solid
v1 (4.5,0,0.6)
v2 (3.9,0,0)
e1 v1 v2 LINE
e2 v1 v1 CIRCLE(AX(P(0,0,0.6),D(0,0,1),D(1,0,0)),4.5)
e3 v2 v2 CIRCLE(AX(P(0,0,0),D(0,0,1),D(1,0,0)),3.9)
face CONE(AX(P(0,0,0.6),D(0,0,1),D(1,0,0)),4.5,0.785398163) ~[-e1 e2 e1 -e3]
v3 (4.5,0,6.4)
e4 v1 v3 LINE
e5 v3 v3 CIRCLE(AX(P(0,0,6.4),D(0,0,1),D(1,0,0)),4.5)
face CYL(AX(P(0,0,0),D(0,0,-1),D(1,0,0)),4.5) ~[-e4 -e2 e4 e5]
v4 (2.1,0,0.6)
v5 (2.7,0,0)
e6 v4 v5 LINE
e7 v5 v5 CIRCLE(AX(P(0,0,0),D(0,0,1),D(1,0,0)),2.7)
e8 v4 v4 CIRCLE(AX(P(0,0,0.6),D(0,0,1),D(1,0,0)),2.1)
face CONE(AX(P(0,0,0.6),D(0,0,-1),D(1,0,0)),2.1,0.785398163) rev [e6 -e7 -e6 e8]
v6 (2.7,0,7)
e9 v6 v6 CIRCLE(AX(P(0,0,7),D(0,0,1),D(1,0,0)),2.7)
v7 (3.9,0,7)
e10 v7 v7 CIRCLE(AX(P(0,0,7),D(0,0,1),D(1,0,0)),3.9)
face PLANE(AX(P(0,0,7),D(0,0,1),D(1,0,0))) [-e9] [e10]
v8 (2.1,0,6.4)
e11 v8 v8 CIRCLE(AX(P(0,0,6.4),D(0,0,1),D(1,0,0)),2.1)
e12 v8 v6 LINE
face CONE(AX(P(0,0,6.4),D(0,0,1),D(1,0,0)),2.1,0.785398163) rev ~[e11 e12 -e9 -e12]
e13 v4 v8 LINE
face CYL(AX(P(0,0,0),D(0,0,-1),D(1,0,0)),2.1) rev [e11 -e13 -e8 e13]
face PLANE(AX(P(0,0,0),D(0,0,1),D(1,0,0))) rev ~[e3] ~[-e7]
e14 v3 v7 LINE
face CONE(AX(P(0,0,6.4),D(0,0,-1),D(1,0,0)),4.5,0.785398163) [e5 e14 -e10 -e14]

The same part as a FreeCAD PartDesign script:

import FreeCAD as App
import Part
import Sketcher
from FreeCAD import Vector
Q = App.Units.Quantity


def edges_at(feature, points):
    """Names of the edges that pass closest to the given points."""
    edges = feature.Shape.Edges
    near = lambda p: min(range(len(edges)), key=lambda i: edges[i].distToShape(Part.Vertex(*p))[0])
    return sorted({f"Edge{near(p) + 1}" for p in points})

doc = App.newDocument("Part")
params = doc.addObject("Spreadsheet::Sheet", "Params")
for row, (alias, value) in enumerate([
    ("sketch1_diameter", "9 mm"),
    ("sketch1_diameter2", "4.2 mm"),
    ("pad1_length", "7 mm"),
    ("chamfer_size", "0.6 mm"),
], start=1):
    params.set(f"A{row}", alias)
    params.set(f"B{row}", "=" + value)
    params.setAlias(f"B{row}", alias)

body = doc.addObject("PartDesign::Body", "Body")

# Sketch on XY plane
sketch1 = body.newObject("Sketcher::SketchObject", "Sketch")
sketch1.AttachmentSupport = (doc.getObject("XY_Plane"), [""])
sketch1.MapMode = "FlatFace"
sketch1.addGeometry([
    Part.Circle(Vector(0, 0, 0), Vector(0, 0, 1), 4.5),
    Part.Circle(Vector(0, 0, 0), Vector(0, 0, 1), 2.1),
], False)
sketch1.addConstraint([
    Sketcher.Constraint("Coincident", 0, 3, -1, 1),
    Sketcher.Constraint("Coincident", 1, 3, -1, 1),
    Sketcher.Constraint("Diameter", 0, Q("9 mm")),
    Sketcher.Constraint("Diameter", 1, Q("4.2 mm")),
])
sketch1.setExpression("Constraints[2]", "Params.sketch1_diameter")
sketch1.setExpression("Constraints[3]", "Params.sketch1_diameter2")
pad1 = body.newObject("PartDesign::Pad", "Pad")
pad1.Profile = sketch1
pad1.setExpression("Length", "Params.pad1_length")
doc.recompute()

chamfer = body.newObject("PartDesign::Chamfer", "Chamfer")
chamfer.Base = (pad1, edges_at(pad1, [
    (-4.5, 0, 7),
    (-4.5, 0, 0),
    (-2.1, 0, 0),
    (-2.1, 0, 7),
]))
chamfer.setExpression("Size", "Params.chamfer_size")

doc.recompute()
